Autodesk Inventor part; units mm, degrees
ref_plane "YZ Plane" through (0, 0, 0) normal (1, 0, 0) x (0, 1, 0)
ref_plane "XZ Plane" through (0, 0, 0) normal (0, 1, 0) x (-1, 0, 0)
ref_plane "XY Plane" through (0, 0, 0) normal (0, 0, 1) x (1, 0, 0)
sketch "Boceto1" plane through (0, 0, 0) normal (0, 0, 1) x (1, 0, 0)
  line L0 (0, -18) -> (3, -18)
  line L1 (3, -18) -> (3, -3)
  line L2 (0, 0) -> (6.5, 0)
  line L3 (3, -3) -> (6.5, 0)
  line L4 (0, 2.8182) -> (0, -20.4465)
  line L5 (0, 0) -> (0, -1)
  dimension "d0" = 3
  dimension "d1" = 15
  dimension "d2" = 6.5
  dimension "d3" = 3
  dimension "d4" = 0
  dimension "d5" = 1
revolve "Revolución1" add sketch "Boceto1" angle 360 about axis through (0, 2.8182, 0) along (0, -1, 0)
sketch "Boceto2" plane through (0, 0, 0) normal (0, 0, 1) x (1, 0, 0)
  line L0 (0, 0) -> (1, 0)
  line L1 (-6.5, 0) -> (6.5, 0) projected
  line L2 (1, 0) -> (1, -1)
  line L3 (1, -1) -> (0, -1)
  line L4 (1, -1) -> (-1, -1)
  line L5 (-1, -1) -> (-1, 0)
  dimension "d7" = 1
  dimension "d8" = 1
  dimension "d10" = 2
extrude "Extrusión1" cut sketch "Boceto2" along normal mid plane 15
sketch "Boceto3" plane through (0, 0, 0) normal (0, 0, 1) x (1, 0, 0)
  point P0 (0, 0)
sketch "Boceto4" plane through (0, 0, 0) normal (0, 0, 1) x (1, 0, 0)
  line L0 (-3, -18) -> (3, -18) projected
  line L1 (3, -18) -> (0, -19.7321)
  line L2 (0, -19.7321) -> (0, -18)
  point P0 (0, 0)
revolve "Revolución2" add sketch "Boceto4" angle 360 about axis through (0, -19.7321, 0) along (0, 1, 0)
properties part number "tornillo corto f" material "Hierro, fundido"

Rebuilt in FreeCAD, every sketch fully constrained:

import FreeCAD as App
import Part
import Sketcher

V = App.Vector
Q = App.Units.Quantity

doc = App.newDocument("Part")
body = doc.addObject("PartDesign::Body", "Body")

# Sketch on XY plane
sketch1 = body.newObject("Sketcher::SketchObject", "Sketch")
sketch1.AttachmentSupport = (doc.getObject("XY_Plane"), [""])
sketch1.MapMode = "FlatFace"
sketch1.addGeometry([
    Part.LineSegment(V(0, 0, 0), V(0, -18, 0)),  # 0
    Part.LineSegment(V(0, -18, 0), V(3, -18, 0)),  # 1
    Part.LineSegment(V(3, -18, 0), V(3, -3, 0)),  # 2
    Part.LineSegment(V(3, -3, 0), V(6.5, 0, 0)),  # 3
    Part.LineSegment(V(6.5, 0, 0), V(0, 0, 0)),  # 4
], False)
sketch1.addConstraint([
    Sketcher.Constraint("Coincident", 0, 2, 1, 1),
    Sketcher.Constraint("Coincident", 1, 2, 2, 1),
    Sketcher.Constraint("Coincident", 2, 2, 3, 1),
    Sketcher.Constraint("Coincident", 3, 2, 4, 1),
    Sketcher.Constraint("Coincident", 4, 2, 0, 1),
    Sketcher.Constraint("Vertical", 0),
    Sketcher.Constraint("Horizontal", 1),
    Sketcher.Constraint("Vertical", 2),
    Sketcher.Constraint("Horizontal", 4),
    Sketcher.Constraint("Coincident", 4, 2, -1, 1),
    Sketcher.Constraint("DistanceX", 1, 1, 1, 2, 3.0),
    Sketcher.Constraint("DistanceY", 2, 1, 2, 2, 15.0),
    Sketcher.Constraint("DistanceX", 4, 2, 4, 1, 6.5),
    Sketcher.Constraint("DistanceY", 2, 2, -1, 1, 3.0),
])
revolution = body.newObject("PartDesign::Revolution", "Revolution")
revolution.Profile = sketch1
revolution.ReferenceAxis = (sketch1, ["V_Axis"])
revolution.Angle = 360

# Sketch on XY plane
sketch2 = body.newObject("Sketcher::SketchObject", "Sketch001")
sketch2.AttachmentSupport = (doc.getObject("XY_Plane"), [""])
sketch2.MapMode = "FlatFace"
sketch2.addGeometry([
    Part.LineSegment(V(1, 0, 0), V(-1, 0, 0)),
    Part.LineSegment(V(-1, 0, 0), V(-1, -1, 0)),
    Part.LineSegment(V(-1, -1, 0), V(1, -1, 0)),
    Part.LineSegment(V(1, -1, 0), V(1, 0, 0)),
], False)
sketch2.addConstraint([
    Sketcher.Constraint("Coincident", 0, 2, 1, 1),
    Sketcher.Constraint("Coincident", 1, 2, 2, 1),
    Sketcher.Constraint("Coincident", 2, 2, 3, 1),
    Sketcher.Constraint("Coincident", 3, 2, 0, 1),
    Sketcher.Constraint("Horizontal", 0),
    Sketcher.Constraint("Vertical", 1),
    Sketcher.Constraint("Horizontal", 2),
    Sketcher.Constraint("Vertical", 3),
    Sketcher.Constraint("Symmetric", 0, 2, 3, 2, -1, 1),
    Sketcher.Constraint("DistanceX", 0, 2, 0, 1, 2.0),
    Sketcher.Constraint("DistanceY", 1, 2, 1, 1, 1.0),
])
pocket1 = body.newObject("PartDesign::Pocket", "Pocket")
pocket1.Profile = sketch2
pocket1.Length = 15
pocket1.Midplane = True

# Sketch on XY plane
sketch3 = body.newObject("Sketcher::SketchObject", "Sketch002")
sketch3.AttachmentSupport = (doc.getObject("XY_Plane"), [""])
sketch3.MapMode = "FlatFace"
sketch3.addGeometry([
    Part.LineSegment(V(3, -18, 0), V(0, -18, 0)),
    Part.LineSegment(V(0, -18, 0), V(0, -19.7, 0)),
    Part.LineSegment(V(0, -19.7, 0), V(3, -18, 0)),
], False)
sketch3.addConstraint([
    Sketcher.Constraint("Coincident", 0, 2, 1, 1),
    Sketcher.Constraint("Coincident", 1, 2, 2, 1),
    Sketcher.Constraint("Coincident", 2, 2, 0, 1),
    Sketcher.Constraint("Horizontal", 0),
    Sketcher.Constraint("Vertical", 1),
    Sketcher.Constraint("PointOnObject", 0, 2, -2),
    Sketcher.Constraint("DistanceX", 0, 2, 0, 1, 3.0),
    Sketcher.Constraint("Angle", 2, Q("30.0007 deg")),
    Sketcher.Constraint("DistanceY", 0, 2, -1, 1, 18.0),
])
revolution2 = body.newObject("PartDesign::Revolution", "Revolution001")
revolution2.Profile = sketch3
revolution2.ReferenceAxis = (sketch3, ["V_Axis"])
revolution2.Angle = 360

doc.recompute()
